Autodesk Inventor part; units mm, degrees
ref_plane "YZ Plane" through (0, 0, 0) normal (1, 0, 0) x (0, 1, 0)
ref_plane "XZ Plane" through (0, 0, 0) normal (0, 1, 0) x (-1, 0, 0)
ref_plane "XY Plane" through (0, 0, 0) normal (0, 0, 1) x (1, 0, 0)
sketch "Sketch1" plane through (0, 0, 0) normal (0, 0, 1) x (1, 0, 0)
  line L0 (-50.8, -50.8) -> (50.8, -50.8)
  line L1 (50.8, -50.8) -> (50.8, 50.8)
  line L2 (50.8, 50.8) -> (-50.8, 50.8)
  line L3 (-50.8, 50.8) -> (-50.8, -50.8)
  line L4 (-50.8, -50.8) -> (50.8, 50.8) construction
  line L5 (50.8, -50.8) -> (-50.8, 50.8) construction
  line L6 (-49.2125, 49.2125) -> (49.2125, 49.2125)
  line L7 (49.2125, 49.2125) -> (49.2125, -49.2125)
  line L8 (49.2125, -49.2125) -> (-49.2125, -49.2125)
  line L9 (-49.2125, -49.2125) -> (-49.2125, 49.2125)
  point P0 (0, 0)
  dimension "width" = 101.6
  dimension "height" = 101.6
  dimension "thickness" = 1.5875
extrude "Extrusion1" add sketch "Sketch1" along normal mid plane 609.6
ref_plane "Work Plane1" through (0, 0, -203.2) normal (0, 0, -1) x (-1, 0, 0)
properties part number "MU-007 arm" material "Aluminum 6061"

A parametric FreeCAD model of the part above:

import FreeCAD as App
import Part
import Sketcher
Q = App.Units.Quantity


def add_polygon(sketch, points):
    """Adds a closed chain of lines whose ends are joined by coincident constraints."""
    first, n = sketch.GeometryCount, len(points)
    for a, b in zip(points, points[1:] + points[:1]):
        sketch.addGeometry(Part.LineSegment(App.Vector(*a, 0), App.Vector(*b, 0)), False)
    for i in range(n):
        sketch.addConstraint(Sketcher.Constraint("Coincident", first + i, 2, first + (i + 1) % n, 1))

doc = App.newDocument("Part")
body = doc.addObject("PartDesign::Body", "Body")

# Sketch on XY plane
sketch1 = body.newObject("Sketcher::SketchObject", "Sketch")
sketch1.AttachmentSupport = (doc.getObject("XY_Plane"), [""])
sketch1.MapMode = "FlatFace"
add_polygon(sketch1, [(-51, 51), (-51, -51), (51, -51), (51, 51)])  # lines 0-3
add_polygon(sketch1, [(-49, -49), (-49, 49), (49, 49), (49, -49)])  # lines 4-7
sketch1.addConstraint(Sketcher.Constraint("Vertical", 0))
sketch1.addConstraint(Sketcher.Constraint("Horizontal", 1))
sketch1.addConstraint(Sketcher.Constraint("Vertical", 2))
sketch1.addConstraint(Sketcher.Constraint("Horizontal", 3))
sketch1.addConstraint(Sketcher.Constraint("Vertical", 4))
sketch1.addConstraint(Sketcher.Constraint("Horizontal", 5))
sketch1.addConstraint(Sketcher.Constraint("Vertical", 6))
sketch1.addConstraint(Sketcher.Constraint("Horizontal", 7))
sketch1.addConstraint(Sketcher.Constraint("Symmetric", 0, 2, 2, 2, -1, 1))
sketch1.addConstraint(Sketcher.Constraint("Symmetric", 4, 2, 6, 2, -1, 1))
sketch1.addConstraint(Sketcher.Constraint("Equal", 3, 0))
sketch1.addConstraint(Sketcher.Constraint("Equal", 7, 4))
sketch1.addConstraint(Sketcher.Constraint("DistanceX", 1, 1, 1, 2, Q("4 in")))
sketch1.addConstraint(Sketcher.Constraint("DistanceX", 3, 2, 4, 2, Q("0.0625 in")))
pad1 = body.newObject("PartDesign::Pad", "Pad")
pad1.Profile = sketch1
pad1.Length = Q("24 in")
pad1.Midplane = True

doc.recompute()
